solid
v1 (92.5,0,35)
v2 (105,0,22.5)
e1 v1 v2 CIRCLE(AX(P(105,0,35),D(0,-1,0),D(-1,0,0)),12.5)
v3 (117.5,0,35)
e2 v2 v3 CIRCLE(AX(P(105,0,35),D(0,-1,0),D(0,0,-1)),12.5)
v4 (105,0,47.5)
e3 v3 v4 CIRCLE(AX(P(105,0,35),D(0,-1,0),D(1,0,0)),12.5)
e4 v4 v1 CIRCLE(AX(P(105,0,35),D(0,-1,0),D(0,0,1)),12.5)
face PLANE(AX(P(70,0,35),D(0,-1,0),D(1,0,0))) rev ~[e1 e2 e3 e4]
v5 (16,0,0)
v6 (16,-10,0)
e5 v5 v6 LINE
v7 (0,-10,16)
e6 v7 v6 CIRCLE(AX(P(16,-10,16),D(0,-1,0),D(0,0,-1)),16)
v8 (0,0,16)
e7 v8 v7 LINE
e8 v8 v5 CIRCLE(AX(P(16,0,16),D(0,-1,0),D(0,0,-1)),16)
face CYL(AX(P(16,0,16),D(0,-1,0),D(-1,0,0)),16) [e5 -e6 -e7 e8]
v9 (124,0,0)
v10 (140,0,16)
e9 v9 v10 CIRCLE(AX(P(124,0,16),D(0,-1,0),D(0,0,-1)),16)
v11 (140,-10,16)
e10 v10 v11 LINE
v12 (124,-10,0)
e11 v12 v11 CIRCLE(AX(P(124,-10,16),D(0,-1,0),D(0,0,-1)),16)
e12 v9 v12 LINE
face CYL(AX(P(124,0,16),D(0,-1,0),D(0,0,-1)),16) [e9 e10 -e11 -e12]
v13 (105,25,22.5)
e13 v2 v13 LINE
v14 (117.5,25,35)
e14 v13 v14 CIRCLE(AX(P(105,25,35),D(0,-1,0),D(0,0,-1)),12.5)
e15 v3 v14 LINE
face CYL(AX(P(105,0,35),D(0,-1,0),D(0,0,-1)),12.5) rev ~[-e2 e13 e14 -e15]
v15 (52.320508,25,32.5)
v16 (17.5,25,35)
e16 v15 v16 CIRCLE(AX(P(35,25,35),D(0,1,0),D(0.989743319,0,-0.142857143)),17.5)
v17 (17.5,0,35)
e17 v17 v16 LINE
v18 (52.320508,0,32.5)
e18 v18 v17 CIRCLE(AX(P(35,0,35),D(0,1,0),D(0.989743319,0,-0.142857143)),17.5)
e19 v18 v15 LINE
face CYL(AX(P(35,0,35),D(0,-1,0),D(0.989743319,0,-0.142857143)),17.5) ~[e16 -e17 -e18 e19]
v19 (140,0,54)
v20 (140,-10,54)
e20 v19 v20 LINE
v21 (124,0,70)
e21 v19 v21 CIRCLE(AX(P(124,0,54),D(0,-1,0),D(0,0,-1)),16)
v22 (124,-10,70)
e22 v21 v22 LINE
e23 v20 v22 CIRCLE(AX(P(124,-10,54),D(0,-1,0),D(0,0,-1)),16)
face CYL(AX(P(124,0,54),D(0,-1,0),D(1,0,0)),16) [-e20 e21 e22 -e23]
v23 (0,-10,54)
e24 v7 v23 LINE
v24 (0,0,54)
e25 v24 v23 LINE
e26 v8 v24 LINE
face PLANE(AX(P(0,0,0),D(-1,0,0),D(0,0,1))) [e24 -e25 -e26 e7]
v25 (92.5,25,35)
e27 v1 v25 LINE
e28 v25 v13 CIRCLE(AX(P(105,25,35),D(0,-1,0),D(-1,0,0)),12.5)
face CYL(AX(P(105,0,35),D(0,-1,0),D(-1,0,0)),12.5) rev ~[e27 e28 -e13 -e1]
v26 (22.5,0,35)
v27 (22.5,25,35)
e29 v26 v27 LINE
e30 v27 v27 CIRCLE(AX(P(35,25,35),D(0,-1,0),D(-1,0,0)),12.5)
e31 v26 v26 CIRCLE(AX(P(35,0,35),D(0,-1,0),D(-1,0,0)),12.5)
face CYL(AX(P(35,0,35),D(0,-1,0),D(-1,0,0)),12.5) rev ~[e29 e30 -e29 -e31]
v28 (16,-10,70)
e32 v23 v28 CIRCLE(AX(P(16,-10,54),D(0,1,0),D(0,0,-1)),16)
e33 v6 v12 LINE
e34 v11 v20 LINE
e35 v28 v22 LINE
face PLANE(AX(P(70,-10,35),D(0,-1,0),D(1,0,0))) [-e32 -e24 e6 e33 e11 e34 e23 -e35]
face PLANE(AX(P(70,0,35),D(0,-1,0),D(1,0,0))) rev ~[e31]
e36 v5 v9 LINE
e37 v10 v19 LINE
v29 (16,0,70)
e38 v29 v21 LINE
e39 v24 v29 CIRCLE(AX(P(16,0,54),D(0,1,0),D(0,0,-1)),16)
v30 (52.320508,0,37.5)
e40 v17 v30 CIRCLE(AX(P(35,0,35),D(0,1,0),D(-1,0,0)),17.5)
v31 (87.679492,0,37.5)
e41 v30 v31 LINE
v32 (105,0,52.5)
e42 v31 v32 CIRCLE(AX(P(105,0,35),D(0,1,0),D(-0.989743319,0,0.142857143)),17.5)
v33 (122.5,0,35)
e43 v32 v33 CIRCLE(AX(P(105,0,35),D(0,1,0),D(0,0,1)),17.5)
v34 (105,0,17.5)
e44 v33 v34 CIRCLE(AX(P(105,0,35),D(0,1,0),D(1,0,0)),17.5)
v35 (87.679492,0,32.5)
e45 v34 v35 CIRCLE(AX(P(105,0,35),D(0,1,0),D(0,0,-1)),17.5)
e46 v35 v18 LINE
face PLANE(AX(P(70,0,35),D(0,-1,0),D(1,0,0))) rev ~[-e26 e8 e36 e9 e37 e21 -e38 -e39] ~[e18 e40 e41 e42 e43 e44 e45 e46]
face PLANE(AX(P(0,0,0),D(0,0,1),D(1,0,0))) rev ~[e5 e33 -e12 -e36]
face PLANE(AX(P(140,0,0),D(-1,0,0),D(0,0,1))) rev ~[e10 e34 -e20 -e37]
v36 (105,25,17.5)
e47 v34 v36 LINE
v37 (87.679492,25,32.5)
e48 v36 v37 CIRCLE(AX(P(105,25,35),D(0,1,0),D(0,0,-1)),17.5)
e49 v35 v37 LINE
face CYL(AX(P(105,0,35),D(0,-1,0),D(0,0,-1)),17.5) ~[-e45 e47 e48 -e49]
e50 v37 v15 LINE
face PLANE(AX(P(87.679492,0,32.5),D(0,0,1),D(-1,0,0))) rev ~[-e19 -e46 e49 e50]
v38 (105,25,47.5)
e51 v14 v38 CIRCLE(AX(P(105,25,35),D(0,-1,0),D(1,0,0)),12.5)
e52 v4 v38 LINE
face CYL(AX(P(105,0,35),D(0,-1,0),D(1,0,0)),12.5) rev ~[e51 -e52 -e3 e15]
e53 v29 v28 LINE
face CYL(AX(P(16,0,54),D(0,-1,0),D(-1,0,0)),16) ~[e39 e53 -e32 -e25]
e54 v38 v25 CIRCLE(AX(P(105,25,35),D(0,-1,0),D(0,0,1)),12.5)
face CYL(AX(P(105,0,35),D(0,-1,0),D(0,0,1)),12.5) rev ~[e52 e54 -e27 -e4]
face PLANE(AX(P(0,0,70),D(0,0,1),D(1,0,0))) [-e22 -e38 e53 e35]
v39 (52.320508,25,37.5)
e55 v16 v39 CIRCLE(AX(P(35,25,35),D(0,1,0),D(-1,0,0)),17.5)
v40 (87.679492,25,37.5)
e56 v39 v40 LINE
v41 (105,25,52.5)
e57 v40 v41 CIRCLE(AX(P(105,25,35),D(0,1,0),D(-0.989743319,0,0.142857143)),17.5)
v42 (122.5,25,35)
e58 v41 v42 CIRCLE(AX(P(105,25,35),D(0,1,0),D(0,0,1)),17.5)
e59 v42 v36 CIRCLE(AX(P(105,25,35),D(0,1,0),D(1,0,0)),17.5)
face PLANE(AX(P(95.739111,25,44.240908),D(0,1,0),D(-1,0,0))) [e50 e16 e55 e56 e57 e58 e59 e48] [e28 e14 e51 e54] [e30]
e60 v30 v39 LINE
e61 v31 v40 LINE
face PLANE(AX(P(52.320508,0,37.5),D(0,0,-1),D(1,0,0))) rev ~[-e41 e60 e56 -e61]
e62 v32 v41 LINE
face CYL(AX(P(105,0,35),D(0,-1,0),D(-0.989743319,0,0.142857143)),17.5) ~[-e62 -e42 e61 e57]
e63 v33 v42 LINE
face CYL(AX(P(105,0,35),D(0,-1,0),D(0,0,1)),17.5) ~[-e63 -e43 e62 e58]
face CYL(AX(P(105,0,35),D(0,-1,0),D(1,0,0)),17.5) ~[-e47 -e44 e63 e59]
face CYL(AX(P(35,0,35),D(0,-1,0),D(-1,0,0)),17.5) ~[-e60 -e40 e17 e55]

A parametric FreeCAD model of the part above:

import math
import FreeCAD as App
import Part
import Sketcher
Q = App.Units.Quantity


def edges_at(feature, points):
    """Names of the edges that pass closest to the given points."""
    edges = feature.Shape.Edges
    near = lambda p: min(range(len(edges)), key=lambda i: edges[i].distToShape(Part.Vertex(*p))[0])
    return sorted({f"Edge{near(p) + 1}" for p in points})


def add_polygon(sketch, points):
    """Adds a closed chain of lines whose ends are joined by coincident constraints."""
    first, n = sketch.GeometryCount, len(points)
    for a, b in zip(points, points[1:] + points[:1]):
        sketch.addGeometry(Part.LineSegment(App.Vector(*a, 0), App.Vector(*b, 0)), False)
    for i in range(n):
        sketch.addConstraint(Sketcher.Constraint("Coincident", first + i, 2, first + (i + 1) % n, 1))

doc = App.newDocument("Part")
params = doc.addObject("Spreadsheet::Sheet", "Params")
for row, (alias, value) in enumerate([
    ("sketch1_width", "140 mm"),
    ("sketch1_height", "70 mm"),
    ("pad1_length", "10 mm"),
    ("fillet_radius", "16 mm"),
    ("sketch2_diameter", "25 mm"),
    ("sketch2_radius", "17.5 mm"),
    ("pad2_length", "25 mm"),
], start=1):
    params.set(f"A{row}", alias)
    params.set(f"B{row}", "=" + value)
    params.setAlias(f"B{row}", alias)

body = doc.addObject("PartDesign::Body", "Body")

# Sketch on XZ plane
sketch1 = body.newObject("Sketcher::SketchObject", "Sketch")
sketch1.AttachmentSupport = (doc.getObject("XZ_Plane"), [""])
sketch1.MapMode = "FlatFace"
add_polygon(sketch1, [(0, 70), (0, 0), (140, 0), (140, 70)])  # lines 0-3
sketch1.addConstraint(Sketcher.Constraint("Vertical", 0))
sketch1.addConstraint(Sketcher.Constraint("Horizontal", 1))
sketch1.addConstraint(Sketcher.Constraint("Vertical", 2))
sketch1.addConstraint(Sketcher.Constraint("Horizontal", 3))
sketch1.addConstraint(Sketcher.Constraint("Coincident", 0, 2, -1, 1))
sketch1.addConstraint(Sketcher.Constraint("DistanceX", 1, 1, 1, 2, Q("140 mm")))
sketch1.addConstraint(Sketcher.Constraint("DistanceY", 0, 2, 0, 1, Q("70 mm")))
sketch1.setExpression("Constraints[9]", "Params.sketch1_width")
sketch1.setExpression("Constraints[10]", "Params.sketch1_height")
pad1 = body.newObject("PartDesign::Pad", "Pad")
pad1.Profile = sketch1
pad1.setExpression("Length", "Params.pad1_length")
doc.recompute()

fillet = body.newObject("PartDesign::Fillet", "Fillet")
fillet.Base = (pad1, edges_at(pad1, [
    (0, -5, 0),
    (140, -5, 0),
    (140, -5, 70),
    (0, -5, 70),
]))
fillet.setExpression("Radius", "Params.fillet_radius")

# Sketch on XZ plane
sketch2 = body.newObject("Sketcher::SketchObject", "Sketch001")
sketch2.AttachmentSupport = (doc.getObject("XZ_Plane"), [""])
sketch2.MapMode = "FlatFace"
sketch2.addGeometry(Part.ArcOfCircle(Part.Circle(App.Vector(105, 35, 0), App.Vector(0, 0, 1), 18), math.radians(90), math.radians(172)), False)
sketch2.addGeometry(Part.ArcOfCircle(Part.Circle(App.Vector(105, 35, 0), App.Vector(0, 0, 1), 18), math.radians(0), math.radians(90)), False)
sketch2.addGeometry(Part.ArcOfCircle(Part.Circle(App.Vector(105, 35, 0), App.Vector(0, 0, 1), 18), math.radians(-90), math.radians(0)), False)
sketch2.addGeometry(Part.ArcOfCircle(Part.Circle(App.Vector(105, 35, 0), App.Vector(0, 0, 1), 18), math.radians(-172), math.radians(-90)), False)
sketch2.addGeometry(Part.LineSegment(App.Vector(88, 32, 0), App.Vector(52, 32, 0)), False)
sketch2.addGeometry(Part.ArcOfCircle(Part.Circle(App.Vector(35, 35, 0), App.Vector(0, 0, 1), 18), math.radians(180), math.radians(352)), False)
sketch2.addGeometry(Part.ArcOfCircle(Part.Circle(App.Vector(35, 35, 0), App.Vector(0, 0, 1), 18), math.radians(8), math.radians(180)), False)
sketch2.addGeometry(Part.LineSegment(App.Vector(52, 38, 0), App.Vector(88, 38, 0)), False)
sketch2.addGeometry(Part.ArcOfCircle(Part.Circle(App.Vector(105, 35, 0), App.Vector(0, 0, 1), 12), math.radians(90), math.radians(180)), False)
sketch2.addGeometry(Part.ArcOfCircle(Part.Circle(App.Vector(105, 35, 0), App.Vector(0, 0, 1), 12), math.radians(180), math.radians(270)), False)
sketch2.addGeometry(Part.ArcOfCircle(Part.Circle(App.Vector(105, 35, 0), App.Vector(0, 0, 1), 12), math.radians(-90), math.radians(0)), False)
sketch2.addGeometry(Part.ArcOfCircle(Part.Circle(App.Vector(105, 35, 0), App.Vector(0, 0, 1), 12), math.radians(0), math.radians(90)), False)
sketch2.addGeometry(Part.Circle(App.Vector(35, 35, 0), App.Vector(0, 0, 1), 12), False)
sketch2.addConstraint(Sketcher.Constraint("Tangent", 0, 1, 1, 2))
sketch2.addConstraint(Sketcher.Constraint("Tangent", 1, 1, 2, 2))
sketch2.addConstraint(Sketcher.Constraint("Tangent", 2, 1, 3, 2))
sketch2.addConstraint(Sketcher.Constraint("Coincident", 3, 1, 4, 1))
sketch2.addConstraint(Sketcher.Constraint("Coincident", 4, 2, 5, 2))
sketch2.addConstraint(Sketcher.Constraint("Tangent", 5, 1, 6, 2))
sketch2.addConstraint(Sketcher.Constraint("Coincident", 6, 1, 7, 1))
sketch2.addConstraint(Sketcher.Constraint("Coincident", 7, 2, 0, 2))
sketch2.addConstraint(Sketcher.Constraint("Tangent", 8, 2, 9, 1))
sketch2.addConstraint(Sketcher.Constraint("Tangent", 9, 2, 10, 1))
sketch2.addConstraint(Sketcher.Constraint("Tangent", 10, 2, 11, 1))
sketch2.addConstraint(Sketcher.Constraint("Tangent", 11, 2, 8, 1))
sketch2.addConstraint(Sketcher.Constraint("Horizontal", 4))
sketch2.addConstraint(Sketcher.Constraint("Horizontal", 7))
sketch2.addConstraint(Sketcher.Constraint("Coincident", 2, 3, 0, 3))
sketch2.addConstraint(Sketcher.Constraint("Coincident", 8, 3, 0, 3))
sketch2.addConstraint(Sketcher.Constraint("Coincident", 12, 3, 5, 3))
sketch2.addConstraint(Sketcher.Constraint("Equal", 2, 3))
sketch2.addConstraint(Sketcher.Constraint("Equal", 3, 5))
sketch2.addConstraint(Sketcher.Constraint("Equal", 5, 6))
sketch2.addConstraint(Sketcher.Constraint("Equal", 8, 9))
sketch2.addConstraint(Sketcher.Constraint("Equal", 11, 12))
sketch2.addConstraint(Sketcher.Constraint("Horizontal", 3, 3, 5, 3))
sketch2.addConstraint(Sketcher.Constraint("Horizontal", 12, 3, 1, 1))
sketch2.addConstraint(Sketcher.Constraint("Horizontal", 1, 1, 5, 1))
sketch2.addConstraint(Sketcher.Constraint("Horizontal", 5, 1, 8, 2))
sketch2.addConstraint(Sketcher.Constraint("Horizontal", 8, 2, 10, 2))
sketch2.addConstraint(Sketcher.Constraint("Vertical", 11, 3, 0, 1))
sketch2.addConstraint(Sketcher.Constraint("Vertical", 0, 1, 2, 1))
sketch2.addConstraint(Sketcher.Constraint("Vertical", 4, 2, 6, 1))
sketch2.addConstraint(Sketcher.Constraint("Vertical", 2, 1, 9, 2))
sketch2.addConstraint(Sketcher.Constraint("Vertical", 9, 2, 11, 2))
sketch2.addConstraint(Sketcher.Constraint("Diameter", 12, Q("25 mm")))
sketch2.addConstraint(Sketcher.Constraint("Radius", 0, Q("17.5 mm")))
sketch2.addConstraint(Sketcher.Constraint("DistanceX", -1, 1, 0, 3, Q("105 mm")))
sketch2.addConstraint(Sketcher.Constraint("DistanceY", -1, 1, 0, 3, Q("35 mm")))
sketch2.addConstraint(Sketcher.Constraint("DistanceX", -1, 1, 5, 3, Q("35 mm")))
sketch2.addConstraint(Sketcher.Constraint("DistanceY", 4, 2, 6, 1, Q("5 mm")))
sketch2.setExpression("Constraints[32]", "Params.sketch2_diameter")
sketch2.setExpression("Constraints[33]", "Params.sketch2_radius")
pad2 = body.newObject("PartDesign::Pad", "Pad001")
pad2.Profile = sketch2
pad2.setExpression("Length", "Params.pad2_length")
pad2.Reversed = True

doc.recompute()
